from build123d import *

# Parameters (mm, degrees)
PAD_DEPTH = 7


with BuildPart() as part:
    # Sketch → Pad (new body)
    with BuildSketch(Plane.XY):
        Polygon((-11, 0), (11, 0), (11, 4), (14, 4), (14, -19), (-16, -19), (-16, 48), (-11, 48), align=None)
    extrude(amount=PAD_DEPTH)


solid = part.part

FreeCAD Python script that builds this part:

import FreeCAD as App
import Part
import Sketcher
from FreeCAD import Vector


def add_polygon(sketch, points):
    """Adds a closed chain of lines whose ends are joined by coincident constraints."""
    first, n = sketch.GeometryCount, len(points)
    for a, b in zip(points, points[1:] + points[:1]):
        sketch.addGeometry(Part.LineSegment(App.Vector(*a, 0), App.Vector(*b, 0)), False)
    for i in range(n):
        sketch.addConstraint(Sketcher.Constraint("Coincident", first + i, 2, first + (i + 1) % n, 1))

doc = App.newDocument("Part")
body = doc.addObject("PartDesign::Body", "Body")

# Sketch on XY plane
sketch1 = body.newObject("Sketcher::SketchObject", "Sketch")
sketch1.AttachmentSupport = (doc.getObject("XY_Plane"), [""])
sketch1.MapMode = "FlatFace"
add_polygon(sketch1, [(11, 0), (-11, 0), (-11, 48), (-16, 48), (-16, -19), (14, -19), (14, 4), (11, 4)])  # lines 0-7
sketch1.addConstraint(Sketcher.Constraint("Horizontal", 0))
sketch1.addConstraint(Sketcher.Constraint("Vertical", 1))
sketch1.addConstraint(Sketcher.Constraint("Horizontal", 2))
sketch1.addConstraint(Sketcher.Constraint("Vertical", 3))
sketch1.addConstraint(Sketcher.Constraint("Horizontal", 4))
sketch1.addConstraint(Sketcher.Constraint("Vertical", 5))
sketch1.addConstraint(Sketcher.Constraint("Horizontal", 6))
sketch1.addConstraint(Sketcher.Constraint("Vertical", 7))
sketch1.addConstraint(Sketcher.Constraint("Symmetric", 0, 2, 7, 2, -1, 1))
sketch1.addConstraint(Sketcher.Constraint("DistanceX", 0, 2, 0, 1, 22.0))
sketch1.addConstraint(Sketcher.Constraint("DistanceX", 2, 2, 2, 1, 5.0))
sketch1.addConstraint(Sketcher.Constraint("DistanceX", 4, 1, 4, 2, 30.0))
sketch1.addConstraint(Sketcher.Constraint("DistanceY", 1, 1, 1, 2, 48.0))
sketch1.addConstraint(Sketcher.Constraint("DistanceY", 3, 2, 3, 1, 67.0))
sketch1.addConstraint(Sketcher.Constraint("DistanceY", 5, 1, 5, 2, 23.0))
pad1 = body.newObject("PartDesign::Pad", "Pad")
pad1.Profile = sketch1
pad1.Length = 7

doc.recompute()
